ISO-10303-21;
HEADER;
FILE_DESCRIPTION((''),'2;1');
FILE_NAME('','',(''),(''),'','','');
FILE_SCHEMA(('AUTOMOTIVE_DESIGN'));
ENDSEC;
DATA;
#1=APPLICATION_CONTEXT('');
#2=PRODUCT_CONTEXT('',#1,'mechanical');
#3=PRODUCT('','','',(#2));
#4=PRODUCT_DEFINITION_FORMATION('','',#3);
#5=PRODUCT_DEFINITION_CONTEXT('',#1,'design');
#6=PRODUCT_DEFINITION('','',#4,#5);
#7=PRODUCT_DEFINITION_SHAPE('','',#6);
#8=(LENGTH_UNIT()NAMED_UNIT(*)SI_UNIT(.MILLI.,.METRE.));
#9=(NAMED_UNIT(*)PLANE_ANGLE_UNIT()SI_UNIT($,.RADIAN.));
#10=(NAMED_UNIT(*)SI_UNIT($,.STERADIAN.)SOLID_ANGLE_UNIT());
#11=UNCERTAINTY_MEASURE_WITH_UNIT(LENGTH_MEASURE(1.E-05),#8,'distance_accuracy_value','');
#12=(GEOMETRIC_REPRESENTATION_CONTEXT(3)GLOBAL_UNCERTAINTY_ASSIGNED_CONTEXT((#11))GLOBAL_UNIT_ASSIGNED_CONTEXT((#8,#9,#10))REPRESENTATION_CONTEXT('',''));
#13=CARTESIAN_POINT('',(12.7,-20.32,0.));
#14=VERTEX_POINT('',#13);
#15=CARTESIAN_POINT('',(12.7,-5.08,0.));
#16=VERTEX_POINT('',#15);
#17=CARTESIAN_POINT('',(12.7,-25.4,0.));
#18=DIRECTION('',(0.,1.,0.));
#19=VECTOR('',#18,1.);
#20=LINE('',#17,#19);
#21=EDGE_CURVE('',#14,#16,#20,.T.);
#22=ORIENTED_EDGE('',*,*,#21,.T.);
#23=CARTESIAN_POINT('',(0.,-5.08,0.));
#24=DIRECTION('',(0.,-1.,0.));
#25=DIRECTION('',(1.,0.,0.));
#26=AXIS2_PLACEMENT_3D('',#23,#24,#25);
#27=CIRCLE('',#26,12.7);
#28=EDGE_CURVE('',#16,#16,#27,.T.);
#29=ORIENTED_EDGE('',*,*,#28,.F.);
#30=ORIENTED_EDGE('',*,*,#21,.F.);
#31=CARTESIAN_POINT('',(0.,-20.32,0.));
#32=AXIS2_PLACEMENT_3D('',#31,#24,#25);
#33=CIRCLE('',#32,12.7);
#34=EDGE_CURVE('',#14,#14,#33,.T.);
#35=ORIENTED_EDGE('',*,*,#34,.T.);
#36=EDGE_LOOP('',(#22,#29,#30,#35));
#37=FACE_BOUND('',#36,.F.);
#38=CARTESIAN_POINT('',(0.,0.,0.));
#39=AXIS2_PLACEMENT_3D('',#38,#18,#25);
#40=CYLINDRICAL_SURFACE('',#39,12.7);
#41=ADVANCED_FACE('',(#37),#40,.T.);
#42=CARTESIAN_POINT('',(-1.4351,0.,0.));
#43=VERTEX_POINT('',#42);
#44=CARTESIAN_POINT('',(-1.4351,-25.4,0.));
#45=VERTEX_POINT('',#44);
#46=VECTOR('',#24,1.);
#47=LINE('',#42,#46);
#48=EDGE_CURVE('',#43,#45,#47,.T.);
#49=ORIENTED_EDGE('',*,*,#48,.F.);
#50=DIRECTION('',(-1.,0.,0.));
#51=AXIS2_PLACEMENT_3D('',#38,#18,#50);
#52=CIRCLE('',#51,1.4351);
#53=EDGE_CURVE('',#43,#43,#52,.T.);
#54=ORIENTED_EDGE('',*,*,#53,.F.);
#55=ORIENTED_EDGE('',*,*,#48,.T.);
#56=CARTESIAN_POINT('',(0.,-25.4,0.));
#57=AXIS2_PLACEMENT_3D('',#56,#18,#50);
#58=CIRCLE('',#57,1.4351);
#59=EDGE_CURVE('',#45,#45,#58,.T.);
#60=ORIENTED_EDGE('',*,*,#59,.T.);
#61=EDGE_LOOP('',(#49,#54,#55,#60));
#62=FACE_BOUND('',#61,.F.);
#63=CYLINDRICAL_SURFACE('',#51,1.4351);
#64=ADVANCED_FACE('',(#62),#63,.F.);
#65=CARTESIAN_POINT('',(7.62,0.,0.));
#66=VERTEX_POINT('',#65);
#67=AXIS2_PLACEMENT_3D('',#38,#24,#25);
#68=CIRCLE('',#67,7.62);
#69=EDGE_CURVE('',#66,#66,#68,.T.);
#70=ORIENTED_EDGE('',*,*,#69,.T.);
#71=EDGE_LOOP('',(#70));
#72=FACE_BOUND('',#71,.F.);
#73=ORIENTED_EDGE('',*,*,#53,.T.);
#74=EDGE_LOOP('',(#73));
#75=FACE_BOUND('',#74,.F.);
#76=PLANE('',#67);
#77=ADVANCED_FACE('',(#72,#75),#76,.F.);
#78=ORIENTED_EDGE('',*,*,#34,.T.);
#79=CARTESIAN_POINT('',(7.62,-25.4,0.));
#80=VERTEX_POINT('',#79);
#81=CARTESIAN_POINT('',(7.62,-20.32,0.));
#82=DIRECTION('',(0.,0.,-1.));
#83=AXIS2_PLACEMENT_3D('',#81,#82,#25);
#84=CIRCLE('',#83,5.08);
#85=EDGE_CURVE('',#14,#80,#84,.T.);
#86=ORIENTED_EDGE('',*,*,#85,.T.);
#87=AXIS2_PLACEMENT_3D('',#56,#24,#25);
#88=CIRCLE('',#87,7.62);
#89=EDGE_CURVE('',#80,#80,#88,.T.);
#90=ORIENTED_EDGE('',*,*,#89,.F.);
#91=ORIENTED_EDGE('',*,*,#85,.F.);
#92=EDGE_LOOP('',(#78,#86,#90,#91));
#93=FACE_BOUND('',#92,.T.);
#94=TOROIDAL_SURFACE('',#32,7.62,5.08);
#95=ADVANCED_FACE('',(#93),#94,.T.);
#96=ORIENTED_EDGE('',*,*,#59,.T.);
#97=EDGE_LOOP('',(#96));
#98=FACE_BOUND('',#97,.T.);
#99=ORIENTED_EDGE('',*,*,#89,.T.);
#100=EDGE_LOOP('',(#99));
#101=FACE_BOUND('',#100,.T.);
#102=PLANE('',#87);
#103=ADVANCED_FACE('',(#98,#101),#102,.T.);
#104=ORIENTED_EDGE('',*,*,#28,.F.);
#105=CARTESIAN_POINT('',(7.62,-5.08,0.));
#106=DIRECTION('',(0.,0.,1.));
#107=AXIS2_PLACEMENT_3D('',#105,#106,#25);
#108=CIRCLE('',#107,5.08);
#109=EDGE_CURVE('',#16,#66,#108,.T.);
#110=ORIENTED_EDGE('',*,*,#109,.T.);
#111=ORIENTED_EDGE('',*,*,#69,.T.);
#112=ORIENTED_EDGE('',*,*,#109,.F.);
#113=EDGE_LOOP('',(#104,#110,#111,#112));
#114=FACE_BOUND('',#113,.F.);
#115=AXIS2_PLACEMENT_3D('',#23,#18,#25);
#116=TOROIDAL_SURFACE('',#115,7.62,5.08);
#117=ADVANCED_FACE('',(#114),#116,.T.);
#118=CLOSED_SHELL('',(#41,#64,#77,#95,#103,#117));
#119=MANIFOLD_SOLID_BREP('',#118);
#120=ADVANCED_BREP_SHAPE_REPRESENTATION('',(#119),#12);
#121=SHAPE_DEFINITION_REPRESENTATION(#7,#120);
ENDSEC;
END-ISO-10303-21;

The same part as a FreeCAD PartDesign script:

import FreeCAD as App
import Part
import Sketcher
from FreeCAD import Vector
Q = App.Units.Quantity


def edges_at(feature, points):
    """Names of the edges that pass closest to the given points."""
    edges = feature.Shape.Edges
    near = lambda p: min(range(len(edges)), key=lambda i: edges[i].distToShape(Part.Vertex(*p))[0])
    return sorted({f"Edge{near(p) + 1}" for p in points})

doc = App.newDocument("Part")
body = doc.addObject("PartDesign::Body", "Body")

sketch1 = body.newObject("Sketcher::SketchObject", "Sketch")
sketch1.AttachmentSupport = (doc.getObject("XZ_Plane"), [""])
sketch1.MapMode = "FlatFace"
sketch1.addGeometry(Part.Circle(Vector(0, 0, 0), Vector(0, 0, 1), 13), False)
sketch1.addConstraint(Sketcher.Constraint("Coincident", 0, 3, -1, 1))
sketch1.addConstraint(Sketcher.Constraint("Diameter", 0, Q("1 in")))
pad1 = body.newObject("PartDesign::Pad", "Pad")
pad1.Profile = sketch1
pad1.Length = Q("1 in")

sketch2 = body.newObject("Sketcher::SketchObject", "Sketch001")
sketch2.AttachmentSupport = (doc.getObject("XZ_Plane"), [""])
sketch2.MapMode = "FlatFace"
sketch2.addGeometry(Part.Circle(Vector(0, 0, 0), Vector(0, 0, 1), 13), False)
sketch2.addConstraint(Sketcher.Constraint("Coincident", 0, 3, -1, 1))
sketch2.addConstraint(Sketcher.Constraint("Diameter", 0, Q("1 in")))
pad2 = body.newObject("PartDesign::Pad", "Pad001")
pad2.Profile = sketch2
pad2.Length = Q("0.7 in")
doc.recompute()

fillet = body.newObject("PartDesign::Fillet", "Fillet")
fillet.Base = (pad2, edges_at(pad2, [(-12.7, 0, 0), (-12.7, -25.4, 0)]))
fillet.Radius = Q("0.2 in")

sketch3 = body.newObject("Sketcher::SketchObject", "Sketch002")
sketch3.AttachmentSupport = (doc.getObject("XZ_Plane"), [""])
sketch3.MapMode = "FlatFace"
sketch3.addGeometry(Part.Circle(Vector(0, 0, 0), Vector(0, 0, 1), 1.4), False)
sketch3.addConstraint(Sketcher.Constraint("Coincident", 0, 3, -1, 1))
sketch3.addConstraint(Sketcher.Constraint("Diameter", 0, Q("0.113 in")))
pocket1 = body.newObject("PartDesign::Pocket", "Pocket")
pocket1.Profile = sketch3
pocket1.Length = Q("1 in")
pocket1.Reversed = True

doc.recompute()
